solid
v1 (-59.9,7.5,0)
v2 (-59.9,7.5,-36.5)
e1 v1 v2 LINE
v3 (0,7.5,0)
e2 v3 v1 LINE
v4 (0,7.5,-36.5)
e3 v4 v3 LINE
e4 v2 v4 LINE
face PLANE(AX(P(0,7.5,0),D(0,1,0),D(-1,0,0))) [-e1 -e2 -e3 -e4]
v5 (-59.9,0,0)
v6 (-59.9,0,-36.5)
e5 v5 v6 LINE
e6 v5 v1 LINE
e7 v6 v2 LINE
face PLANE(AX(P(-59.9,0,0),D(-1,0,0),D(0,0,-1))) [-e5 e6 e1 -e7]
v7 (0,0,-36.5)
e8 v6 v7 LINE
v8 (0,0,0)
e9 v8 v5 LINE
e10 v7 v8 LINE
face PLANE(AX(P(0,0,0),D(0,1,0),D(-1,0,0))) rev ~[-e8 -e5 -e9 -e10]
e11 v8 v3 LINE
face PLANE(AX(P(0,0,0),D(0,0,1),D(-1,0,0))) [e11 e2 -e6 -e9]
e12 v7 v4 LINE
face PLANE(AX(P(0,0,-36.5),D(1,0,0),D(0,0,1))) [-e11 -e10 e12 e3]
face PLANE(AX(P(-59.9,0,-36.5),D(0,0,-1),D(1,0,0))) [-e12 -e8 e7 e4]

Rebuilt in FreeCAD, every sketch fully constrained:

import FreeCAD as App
import Part
import Sketcher
Q = App.Units.Quantity

doc = App.newDocument("Part")
body = doc.addObject("PartDesign::Body", "Body")

sketch1 = body.newObject("Sketcher::SketchObject", "Sketch")
sketch1.AttachmentSupport = (doc.getObject("XZ_Plane"), [""])
sketch1.MapMode = "FlatFace"
sketch1.addGeometry(Part.LineSegment(App.Vector(-59.9, 0, 0), App.Vector(0, 0, 0)), False)
sketch1.addGeometry(Part.LineSegment(App.Vector(0, 0, 0), App.Vector(0, -36.5, 0)), False)
sketch1.addGeometry(Part.LineSegment(App.Vector(0, -36.5, 0), App.Vector(-59.9, -36.5, 0)), False)
sketch1.addGeometry(Part.LineSegment(App.Vector(-59.9, -36.5, 0), App.Vector(-59.9, 0, 0)), False)
sketch1.addConstraint(Sketcher.Constraint("Coincident", 0, 2, 1, 1))
sketch1.addConstraint(Sketcher.Constraint("Coincident", 1, 2, 2, 1))
sketch1.addConstraint(Sketcher.Constraint("Coincident", 2, 2, 3, 1))
sketch1.addConstraint(Sketcher.Constraint("Coincident", 3, 2, 0, 1))
sketch1.addConstraint(Sketcher.Constraint("Horizontal", 0))
sketch1.addConstraint(Sketcher.Constraint("Vertical", 1))
sketch1.addConstraint(Sketcher.Constraint("Horizontal", 2))
sketch1.addConstraint(Sketcher.Constraint("Vertical", 3))
sketch1.addConstraint(Sketcher.Constraint("Coincident", 0, 2, -1, 1))
sketch1.addConstraint(Sketcher.Constraint("DistanceX", 0, 1, 0, 2, Q("59.9 mm")))
sketch1.addConstraint(Sketcher.Constraint("DistanceY", 1, 2, 1, 1, Q("36.5 mm")))
pad1 = body.newObject("PartDesign::Pad", "Pad")
pad1.Profile = sketch1
pad1.Length = 7.5
pad1.Reversed = True

doc.recompute()
